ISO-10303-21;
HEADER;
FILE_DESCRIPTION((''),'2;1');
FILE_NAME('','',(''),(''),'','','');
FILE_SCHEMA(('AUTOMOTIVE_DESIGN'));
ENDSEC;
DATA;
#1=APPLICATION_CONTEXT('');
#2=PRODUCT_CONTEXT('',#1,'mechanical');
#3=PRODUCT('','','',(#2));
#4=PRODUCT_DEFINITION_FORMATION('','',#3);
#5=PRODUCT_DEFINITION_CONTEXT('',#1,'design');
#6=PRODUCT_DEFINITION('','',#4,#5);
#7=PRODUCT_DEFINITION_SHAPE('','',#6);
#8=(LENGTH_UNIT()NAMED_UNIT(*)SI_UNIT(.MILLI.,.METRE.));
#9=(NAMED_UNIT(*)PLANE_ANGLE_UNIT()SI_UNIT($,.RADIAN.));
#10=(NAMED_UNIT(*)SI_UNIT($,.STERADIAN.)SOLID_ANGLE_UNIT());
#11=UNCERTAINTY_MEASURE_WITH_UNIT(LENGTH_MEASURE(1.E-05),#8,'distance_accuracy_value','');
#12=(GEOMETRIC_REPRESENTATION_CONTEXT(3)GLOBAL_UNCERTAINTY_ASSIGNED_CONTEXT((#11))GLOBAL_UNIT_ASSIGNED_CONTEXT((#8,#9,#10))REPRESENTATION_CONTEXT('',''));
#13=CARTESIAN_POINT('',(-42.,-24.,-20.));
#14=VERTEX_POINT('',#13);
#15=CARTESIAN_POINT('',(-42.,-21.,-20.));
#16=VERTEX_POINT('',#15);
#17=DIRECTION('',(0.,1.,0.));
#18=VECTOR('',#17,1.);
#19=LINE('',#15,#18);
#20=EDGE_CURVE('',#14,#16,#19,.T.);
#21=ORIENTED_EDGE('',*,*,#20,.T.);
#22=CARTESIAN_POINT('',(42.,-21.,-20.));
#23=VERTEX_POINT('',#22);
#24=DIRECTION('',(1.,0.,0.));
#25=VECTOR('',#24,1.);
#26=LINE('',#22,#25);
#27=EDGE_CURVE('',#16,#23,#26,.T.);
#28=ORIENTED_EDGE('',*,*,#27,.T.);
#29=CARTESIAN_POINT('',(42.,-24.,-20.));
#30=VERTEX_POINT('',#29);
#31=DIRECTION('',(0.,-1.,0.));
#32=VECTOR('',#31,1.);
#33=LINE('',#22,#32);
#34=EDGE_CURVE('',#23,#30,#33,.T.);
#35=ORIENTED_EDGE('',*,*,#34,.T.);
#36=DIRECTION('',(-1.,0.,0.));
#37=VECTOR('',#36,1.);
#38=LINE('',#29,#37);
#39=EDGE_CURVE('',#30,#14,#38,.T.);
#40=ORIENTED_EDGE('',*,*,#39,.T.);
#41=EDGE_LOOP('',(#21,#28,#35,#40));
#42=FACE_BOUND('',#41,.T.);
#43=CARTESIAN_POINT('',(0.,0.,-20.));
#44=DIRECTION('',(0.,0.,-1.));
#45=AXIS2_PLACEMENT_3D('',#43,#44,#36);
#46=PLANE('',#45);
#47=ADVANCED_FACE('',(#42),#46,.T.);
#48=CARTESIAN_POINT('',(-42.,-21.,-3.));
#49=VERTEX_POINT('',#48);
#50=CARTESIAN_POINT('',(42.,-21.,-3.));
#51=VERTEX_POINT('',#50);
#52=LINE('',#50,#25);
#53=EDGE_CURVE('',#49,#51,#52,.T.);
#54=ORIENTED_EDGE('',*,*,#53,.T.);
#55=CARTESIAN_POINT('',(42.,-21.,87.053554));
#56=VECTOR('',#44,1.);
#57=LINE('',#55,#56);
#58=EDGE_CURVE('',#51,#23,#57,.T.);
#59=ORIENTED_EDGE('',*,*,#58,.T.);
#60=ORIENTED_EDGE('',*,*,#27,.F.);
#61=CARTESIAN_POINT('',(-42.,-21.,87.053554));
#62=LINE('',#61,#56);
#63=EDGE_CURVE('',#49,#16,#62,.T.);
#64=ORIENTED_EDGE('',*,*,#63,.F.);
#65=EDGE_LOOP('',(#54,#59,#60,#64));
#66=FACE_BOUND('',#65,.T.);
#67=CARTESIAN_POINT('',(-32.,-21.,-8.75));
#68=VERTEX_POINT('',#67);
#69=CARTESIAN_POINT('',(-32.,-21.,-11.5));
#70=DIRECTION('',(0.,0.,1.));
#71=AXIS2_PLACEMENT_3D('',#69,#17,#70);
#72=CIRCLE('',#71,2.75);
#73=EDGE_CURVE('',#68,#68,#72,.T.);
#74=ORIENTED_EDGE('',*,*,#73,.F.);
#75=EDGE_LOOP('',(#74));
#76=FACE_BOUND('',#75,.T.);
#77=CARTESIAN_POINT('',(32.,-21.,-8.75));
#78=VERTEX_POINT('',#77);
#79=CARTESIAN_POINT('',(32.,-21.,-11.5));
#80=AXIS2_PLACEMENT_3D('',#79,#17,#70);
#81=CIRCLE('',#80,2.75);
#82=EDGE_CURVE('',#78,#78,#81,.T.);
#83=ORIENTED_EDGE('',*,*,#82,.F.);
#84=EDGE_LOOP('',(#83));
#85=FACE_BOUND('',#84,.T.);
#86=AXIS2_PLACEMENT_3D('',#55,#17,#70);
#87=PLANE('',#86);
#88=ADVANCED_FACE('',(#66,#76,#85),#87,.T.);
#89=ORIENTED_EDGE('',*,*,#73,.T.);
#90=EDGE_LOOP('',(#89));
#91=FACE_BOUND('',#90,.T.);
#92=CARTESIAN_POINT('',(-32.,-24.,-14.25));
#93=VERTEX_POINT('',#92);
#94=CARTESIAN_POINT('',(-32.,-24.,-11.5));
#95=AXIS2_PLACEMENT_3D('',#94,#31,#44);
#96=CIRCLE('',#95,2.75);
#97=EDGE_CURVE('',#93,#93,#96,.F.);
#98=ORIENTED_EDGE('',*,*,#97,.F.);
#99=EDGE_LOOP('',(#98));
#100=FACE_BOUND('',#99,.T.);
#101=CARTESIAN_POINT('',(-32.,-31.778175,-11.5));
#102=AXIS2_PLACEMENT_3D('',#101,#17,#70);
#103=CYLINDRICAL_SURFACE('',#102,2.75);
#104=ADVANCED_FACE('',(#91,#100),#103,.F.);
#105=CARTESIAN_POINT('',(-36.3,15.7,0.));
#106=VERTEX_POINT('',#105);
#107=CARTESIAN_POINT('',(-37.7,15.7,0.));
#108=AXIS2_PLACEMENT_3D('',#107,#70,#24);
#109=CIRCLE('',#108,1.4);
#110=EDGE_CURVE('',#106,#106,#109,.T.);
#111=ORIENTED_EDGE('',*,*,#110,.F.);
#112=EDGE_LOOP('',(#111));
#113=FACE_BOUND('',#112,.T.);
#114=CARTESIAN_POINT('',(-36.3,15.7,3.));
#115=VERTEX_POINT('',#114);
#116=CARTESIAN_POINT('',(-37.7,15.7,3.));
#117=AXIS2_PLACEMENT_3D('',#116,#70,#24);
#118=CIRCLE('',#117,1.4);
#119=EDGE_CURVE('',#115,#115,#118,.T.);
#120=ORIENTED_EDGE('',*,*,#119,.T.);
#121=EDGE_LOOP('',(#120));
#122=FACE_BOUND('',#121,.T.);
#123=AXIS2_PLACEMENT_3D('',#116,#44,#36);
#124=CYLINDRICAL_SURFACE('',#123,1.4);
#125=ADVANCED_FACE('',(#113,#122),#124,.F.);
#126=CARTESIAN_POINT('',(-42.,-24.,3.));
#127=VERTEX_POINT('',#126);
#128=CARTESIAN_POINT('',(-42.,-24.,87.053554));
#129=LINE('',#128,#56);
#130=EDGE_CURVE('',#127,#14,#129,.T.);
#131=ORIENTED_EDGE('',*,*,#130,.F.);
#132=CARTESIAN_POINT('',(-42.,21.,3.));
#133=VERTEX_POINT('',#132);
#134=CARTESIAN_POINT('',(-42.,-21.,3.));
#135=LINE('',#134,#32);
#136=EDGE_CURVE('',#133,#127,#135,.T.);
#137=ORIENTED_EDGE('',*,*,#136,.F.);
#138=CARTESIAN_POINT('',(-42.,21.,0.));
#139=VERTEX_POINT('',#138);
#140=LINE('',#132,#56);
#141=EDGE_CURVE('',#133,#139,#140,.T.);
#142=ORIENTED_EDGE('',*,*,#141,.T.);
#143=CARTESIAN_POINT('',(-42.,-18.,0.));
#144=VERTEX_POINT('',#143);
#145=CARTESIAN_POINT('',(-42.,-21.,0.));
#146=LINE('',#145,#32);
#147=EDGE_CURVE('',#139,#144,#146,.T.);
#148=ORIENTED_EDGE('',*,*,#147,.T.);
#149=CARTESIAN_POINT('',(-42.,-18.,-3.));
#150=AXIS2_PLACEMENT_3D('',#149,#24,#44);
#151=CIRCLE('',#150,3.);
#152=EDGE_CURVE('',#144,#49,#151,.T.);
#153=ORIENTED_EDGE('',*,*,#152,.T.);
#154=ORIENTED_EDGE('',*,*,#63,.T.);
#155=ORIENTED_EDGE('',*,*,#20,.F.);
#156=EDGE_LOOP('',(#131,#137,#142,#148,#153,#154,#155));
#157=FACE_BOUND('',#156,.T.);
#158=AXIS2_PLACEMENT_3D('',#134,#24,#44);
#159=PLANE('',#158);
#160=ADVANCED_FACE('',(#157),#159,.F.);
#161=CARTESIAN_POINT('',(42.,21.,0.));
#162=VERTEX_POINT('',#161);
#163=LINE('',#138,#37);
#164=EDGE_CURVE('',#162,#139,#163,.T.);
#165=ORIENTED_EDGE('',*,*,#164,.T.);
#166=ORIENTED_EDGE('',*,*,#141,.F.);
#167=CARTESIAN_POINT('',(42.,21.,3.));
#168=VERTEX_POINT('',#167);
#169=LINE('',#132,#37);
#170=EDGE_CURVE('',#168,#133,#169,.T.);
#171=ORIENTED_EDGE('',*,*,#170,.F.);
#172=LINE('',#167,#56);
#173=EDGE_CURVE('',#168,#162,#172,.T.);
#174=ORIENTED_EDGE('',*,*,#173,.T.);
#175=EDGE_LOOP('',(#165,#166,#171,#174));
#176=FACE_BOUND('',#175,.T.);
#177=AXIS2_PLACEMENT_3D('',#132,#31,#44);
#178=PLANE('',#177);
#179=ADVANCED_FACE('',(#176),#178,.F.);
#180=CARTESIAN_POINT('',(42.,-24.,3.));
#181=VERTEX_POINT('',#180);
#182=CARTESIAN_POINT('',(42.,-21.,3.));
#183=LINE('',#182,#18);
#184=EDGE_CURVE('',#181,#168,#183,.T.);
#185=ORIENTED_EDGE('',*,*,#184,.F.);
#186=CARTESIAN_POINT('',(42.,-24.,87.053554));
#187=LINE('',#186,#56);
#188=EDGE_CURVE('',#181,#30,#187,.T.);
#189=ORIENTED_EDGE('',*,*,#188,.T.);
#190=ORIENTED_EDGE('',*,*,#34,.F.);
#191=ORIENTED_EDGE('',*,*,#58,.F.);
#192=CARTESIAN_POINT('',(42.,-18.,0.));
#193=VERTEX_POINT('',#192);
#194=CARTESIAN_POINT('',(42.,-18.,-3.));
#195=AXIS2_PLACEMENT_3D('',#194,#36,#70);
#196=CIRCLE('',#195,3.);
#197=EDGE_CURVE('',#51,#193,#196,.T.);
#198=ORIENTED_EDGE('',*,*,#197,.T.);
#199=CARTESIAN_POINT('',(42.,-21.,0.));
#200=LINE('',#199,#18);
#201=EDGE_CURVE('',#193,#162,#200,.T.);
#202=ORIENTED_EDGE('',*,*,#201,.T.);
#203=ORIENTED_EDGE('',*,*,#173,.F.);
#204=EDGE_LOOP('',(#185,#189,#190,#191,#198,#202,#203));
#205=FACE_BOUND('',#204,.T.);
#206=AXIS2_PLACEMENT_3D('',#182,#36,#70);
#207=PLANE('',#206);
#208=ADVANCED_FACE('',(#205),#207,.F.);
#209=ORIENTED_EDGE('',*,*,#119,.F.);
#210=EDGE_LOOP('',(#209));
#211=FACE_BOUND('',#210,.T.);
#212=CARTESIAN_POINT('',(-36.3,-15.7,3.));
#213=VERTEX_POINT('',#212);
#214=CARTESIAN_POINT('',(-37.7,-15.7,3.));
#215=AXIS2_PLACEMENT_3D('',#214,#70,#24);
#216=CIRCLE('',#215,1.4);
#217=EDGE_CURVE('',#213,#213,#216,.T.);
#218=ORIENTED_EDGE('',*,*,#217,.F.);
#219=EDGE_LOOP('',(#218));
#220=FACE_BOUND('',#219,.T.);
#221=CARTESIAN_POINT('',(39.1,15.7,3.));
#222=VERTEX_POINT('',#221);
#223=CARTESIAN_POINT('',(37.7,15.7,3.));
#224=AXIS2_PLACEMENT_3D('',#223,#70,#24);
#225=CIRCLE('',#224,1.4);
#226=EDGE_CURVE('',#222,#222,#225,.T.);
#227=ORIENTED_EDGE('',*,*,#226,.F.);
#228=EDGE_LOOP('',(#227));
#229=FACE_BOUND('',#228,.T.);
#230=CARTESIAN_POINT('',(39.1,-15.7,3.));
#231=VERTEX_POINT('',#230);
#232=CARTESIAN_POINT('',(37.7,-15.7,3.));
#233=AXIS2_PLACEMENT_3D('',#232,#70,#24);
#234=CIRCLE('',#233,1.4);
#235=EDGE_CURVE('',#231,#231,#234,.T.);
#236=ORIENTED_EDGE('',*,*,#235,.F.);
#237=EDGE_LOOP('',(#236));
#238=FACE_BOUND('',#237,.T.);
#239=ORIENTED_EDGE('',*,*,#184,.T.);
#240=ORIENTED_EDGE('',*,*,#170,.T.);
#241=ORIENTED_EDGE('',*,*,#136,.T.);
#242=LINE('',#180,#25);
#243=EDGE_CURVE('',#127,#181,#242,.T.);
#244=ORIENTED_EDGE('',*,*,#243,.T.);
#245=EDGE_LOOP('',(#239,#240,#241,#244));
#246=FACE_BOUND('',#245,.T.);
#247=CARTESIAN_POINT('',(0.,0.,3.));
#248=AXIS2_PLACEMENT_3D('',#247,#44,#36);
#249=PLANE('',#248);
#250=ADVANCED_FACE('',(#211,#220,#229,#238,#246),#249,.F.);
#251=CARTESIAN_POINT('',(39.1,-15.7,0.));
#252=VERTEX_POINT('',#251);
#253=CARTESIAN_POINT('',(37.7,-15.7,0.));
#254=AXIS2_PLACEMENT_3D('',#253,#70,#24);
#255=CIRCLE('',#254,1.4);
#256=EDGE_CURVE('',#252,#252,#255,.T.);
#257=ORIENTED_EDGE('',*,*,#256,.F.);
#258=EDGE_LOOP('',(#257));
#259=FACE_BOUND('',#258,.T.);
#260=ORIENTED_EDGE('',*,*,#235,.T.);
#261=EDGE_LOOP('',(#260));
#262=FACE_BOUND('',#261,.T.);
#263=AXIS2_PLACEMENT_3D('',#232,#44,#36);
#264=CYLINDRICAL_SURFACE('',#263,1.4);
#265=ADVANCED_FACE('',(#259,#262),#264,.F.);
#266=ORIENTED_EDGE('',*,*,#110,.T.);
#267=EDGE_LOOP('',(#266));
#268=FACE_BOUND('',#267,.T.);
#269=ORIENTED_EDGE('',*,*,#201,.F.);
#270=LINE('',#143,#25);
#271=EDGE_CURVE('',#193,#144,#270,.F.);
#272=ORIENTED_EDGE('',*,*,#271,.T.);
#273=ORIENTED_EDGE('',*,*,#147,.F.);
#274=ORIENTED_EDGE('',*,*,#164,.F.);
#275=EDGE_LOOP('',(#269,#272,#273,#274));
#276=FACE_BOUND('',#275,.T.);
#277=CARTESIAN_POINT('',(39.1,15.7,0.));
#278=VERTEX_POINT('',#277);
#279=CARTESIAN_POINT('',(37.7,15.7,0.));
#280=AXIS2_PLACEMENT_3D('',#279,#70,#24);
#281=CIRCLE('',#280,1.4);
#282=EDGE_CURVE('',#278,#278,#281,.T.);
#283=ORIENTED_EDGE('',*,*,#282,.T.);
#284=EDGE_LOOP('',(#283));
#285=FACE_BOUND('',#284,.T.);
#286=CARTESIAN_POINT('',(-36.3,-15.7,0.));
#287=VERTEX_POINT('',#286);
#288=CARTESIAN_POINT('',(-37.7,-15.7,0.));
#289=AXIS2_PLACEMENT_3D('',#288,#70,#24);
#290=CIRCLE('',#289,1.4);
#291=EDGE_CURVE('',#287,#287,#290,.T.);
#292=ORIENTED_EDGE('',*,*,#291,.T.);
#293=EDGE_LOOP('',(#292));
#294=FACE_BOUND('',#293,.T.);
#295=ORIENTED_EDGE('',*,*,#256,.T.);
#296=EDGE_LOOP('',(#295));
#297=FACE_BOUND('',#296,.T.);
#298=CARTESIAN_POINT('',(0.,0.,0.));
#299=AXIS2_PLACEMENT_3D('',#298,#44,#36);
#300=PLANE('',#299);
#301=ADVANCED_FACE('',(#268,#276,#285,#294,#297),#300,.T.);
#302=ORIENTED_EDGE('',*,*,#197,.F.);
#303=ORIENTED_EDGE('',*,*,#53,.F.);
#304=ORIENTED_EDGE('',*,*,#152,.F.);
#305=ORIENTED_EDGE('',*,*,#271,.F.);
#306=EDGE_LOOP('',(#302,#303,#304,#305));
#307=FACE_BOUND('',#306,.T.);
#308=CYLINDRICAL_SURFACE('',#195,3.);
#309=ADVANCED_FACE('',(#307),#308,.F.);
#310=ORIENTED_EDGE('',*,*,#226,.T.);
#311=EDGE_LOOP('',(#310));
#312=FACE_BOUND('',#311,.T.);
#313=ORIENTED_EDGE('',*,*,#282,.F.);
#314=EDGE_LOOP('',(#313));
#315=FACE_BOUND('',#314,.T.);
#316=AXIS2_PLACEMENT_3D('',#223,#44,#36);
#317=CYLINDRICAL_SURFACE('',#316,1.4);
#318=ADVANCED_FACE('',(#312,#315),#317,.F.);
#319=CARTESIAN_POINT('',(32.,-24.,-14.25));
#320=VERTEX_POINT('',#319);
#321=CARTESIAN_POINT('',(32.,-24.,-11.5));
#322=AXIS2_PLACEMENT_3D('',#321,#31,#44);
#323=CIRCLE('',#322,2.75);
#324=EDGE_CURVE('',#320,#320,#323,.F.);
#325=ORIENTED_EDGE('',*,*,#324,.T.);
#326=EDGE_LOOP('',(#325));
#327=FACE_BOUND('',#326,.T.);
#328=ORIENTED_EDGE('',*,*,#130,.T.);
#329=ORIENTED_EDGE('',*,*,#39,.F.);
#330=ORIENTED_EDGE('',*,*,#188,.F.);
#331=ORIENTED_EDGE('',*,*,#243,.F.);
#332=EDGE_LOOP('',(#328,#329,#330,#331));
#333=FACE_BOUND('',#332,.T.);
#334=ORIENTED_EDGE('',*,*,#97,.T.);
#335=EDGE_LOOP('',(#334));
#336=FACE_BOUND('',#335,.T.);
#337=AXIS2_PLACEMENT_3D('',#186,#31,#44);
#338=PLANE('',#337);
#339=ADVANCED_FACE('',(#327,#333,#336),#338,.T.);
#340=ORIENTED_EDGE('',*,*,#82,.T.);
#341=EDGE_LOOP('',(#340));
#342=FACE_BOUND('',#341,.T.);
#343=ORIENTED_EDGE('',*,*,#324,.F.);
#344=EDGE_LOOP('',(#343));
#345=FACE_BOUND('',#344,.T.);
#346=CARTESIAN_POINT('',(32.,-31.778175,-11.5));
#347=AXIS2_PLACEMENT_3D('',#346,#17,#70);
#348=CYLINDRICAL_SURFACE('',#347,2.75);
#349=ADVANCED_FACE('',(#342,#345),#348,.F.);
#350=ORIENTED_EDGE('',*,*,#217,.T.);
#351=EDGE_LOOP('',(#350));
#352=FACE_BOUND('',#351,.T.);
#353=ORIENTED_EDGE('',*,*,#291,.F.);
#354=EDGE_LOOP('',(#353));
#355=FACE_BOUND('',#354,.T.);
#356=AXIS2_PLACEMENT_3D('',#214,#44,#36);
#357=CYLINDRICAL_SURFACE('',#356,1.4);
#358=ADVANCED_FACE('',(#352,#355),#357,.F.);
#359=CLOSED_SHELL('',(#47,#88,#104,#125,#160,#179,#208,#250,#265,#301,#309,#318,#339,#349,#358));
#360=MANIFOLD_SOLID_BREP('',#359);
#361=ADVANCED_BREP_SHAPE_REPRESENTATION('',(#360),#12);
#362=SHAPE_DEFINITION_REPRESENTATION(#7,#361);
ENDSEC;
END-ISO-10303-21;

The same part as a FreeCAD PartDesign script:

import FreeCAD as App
import Part
import Sketcher
Q = App.Units.Quantity


def edges_at(feature, points):
    """Names of the edges that pass closest to the given points."""
    edges = feature.Shape.Edges
    near = lambda p: min(range(len(edges)), key=lambda i: edges[i].distToShape(Part.Vertex(*p))[0])
    return sorted({f"Edge{near(p) + 1}" for p in points})


def add_polygon(sketch, points):
    """Adds a closed chain of lines whose ends are joined by coincident constraints."""
    first, n = sketch.GeometryCount, len(points)
    for a, b in zip(points, points[1:] + points[:1]):
        sketch.addGeometry(Part.LineSegment(App.Vector(*a, 0), App.Vector(*b, 0)), False)
    for i in range(n):
        sketch.addConstraint(Sketcher.Constraint("Coincident", first + i, 2, first + (i + 1) % n, 1))

doc = App.newDocument("Part")
body = doc.addObject("PartDesign::Body", "Body")

# Sketch on XY plane
sketch1 = doc.addObject("Sketcher::SketchObject", "Sketch")
body.addObject(sketch1)
sketch1.AttachmentSupport = (doc.XY_Plane, [""])
sketch1.MapMode = "FlatFace"
add_polygon(sketch1, [(-42, 21), (-42, -21), (42, -21), (42, 21)])  # lines 0-3
sketch1.addGeometry(Part.Circle(App.Vector(-37.7, -15.7, 0), App.Vector(0, 0, 1), 1.4), False)  # 4
sketch1.addGeometry(Part.Circle(App.Vector(37.7, -15.7, 0), App.Vector(0, 0, 1), 1.4), False)  # 5
sketch1.addGeometry(Part.Circle(App.Vector(-37.7, 15.7, 0), App.Vector(0, 0, 1), 1.4), False)  # 6
sketch1.addGeometry(Part.Circle(App.Vector(37.7, 15.7, 0), App.Vector(0, 0, 1), 1.4), False)  # 7
sketch1.addConstraint([
    Sketcher.Constraint("Vertical", 0),
    Sketcher.Constraint("Horizontal", 1),
    Sketcher.Constraint("Vertical", 2),
    Sketcher.Constraint("Horizontal", 3),
    Sketcher.Constraint("Equal", 4, 5),
    Sketcher.Constraint("Equal", 5, 6),
    Sketcher.Constraint("Equal", 6, 7),
    Sketcher.Constraint("Symmetric", 5, 3, 6, 3, -1, 1),
    Sketcher.Constraint("Symmetric", 4, 3, 7, 3, -1, 1),
    Sketcher.Constraint("Symmetric", 0, 2, 2, 2, -1, 1),
    Sketcher.Constraint("Symmetric", 4, 3, 5, 3, -2),
    Sketcher.Constraint("Diameter", 4, Q("2.8 mm")),
    Sketcher.Constraint("DistanceX", 1, 1, 1, 2, Q("84 mm")),
    Sketcher.Constraint("DistanceY", 0, 2, 0, 1, Q("42 mm")),
    Sketcher.Constraint("DistanceX", 4, 3, -1, 1, Q("37.7 mm")),
    Sketcher.Constraint("DistanceY", 4, 3, -1, 1, Q("15.7 mm")),
])
pad1 = doc.addObject("PartDesign::Pad", "Pad")
body.addObject(pad1)
pad1.Profile = sketch1
pad1.Length = 3

# Sketch on XY plane
sketch2 = doc.addObject("Sketcher::SketchObject", "Sketch001")
body.addObject(sketch2)
sketch2.AttachmentSupport = (doc.XY_Plane, [""])
sketch2.MapMode = "FlatFace"
add_polygon(sketch2, [(42, -21), (42, -24), (-42, -24), (-42, -21)])  # lines 0-3
sketch2.addConstraint([
    Sketcher.Constraint("Vertical", 0),
    Sketcher.Constraint("Horizontal", 1),
    Sketcher.Constraint("Vertical", 2),
    Sketcher.Constraint("Horizontal", 3),
    Sketcher.Constraint("DistanceX", 1, 2, 1, 1, Q("84 mm")),
    Sketcher.Constraint("DistanceY", 0, 2, 0, 1, Q("3 mm")),
    Sketcher.Constraint("DistanceX", -1, 1, 0, 2, Q("42 mm")),
    Sketcher.Constraint("DistanceY", 0, 2, -1, 1, Q("24 mm")),
])
pad2 = doc.addObject("PartDesign::Pad", "Pad001")
body.addObject(pad2)
pad2.Profile = sketch2
pad2.Type = "TwoLengths"
pad2.Length = 20
pad2.Length2 = 3
pad2.Reversed = True
doc.recompute()

fillet = doc.addObject("PartDesign::Fillet", "Fillet")
body.addObject(fillet)
fillet.Base = (pad2, edges_at(pad2, [(0, -21, 0)]))
fillet.Radius = 3

# Sketch on XZ plane
sketch3 = doc.addObject("Sketcher::SketchObject", "Sketch002")
body.addObject(sketch3)
sketch3.AttachmentSupport = (doc.XZ_Plane, [""])
sketch3.MapMode = "FlatFace"
sketch3.AttachmentOffset = App.Placement(App.Vector(0, 0, 21), App.Rotation())
sketch3.addGeometry([
    Part.Circle(App.Vector(-32, -11.5, 0), App.Vector(0, 0, 1), 2.8),
    Part.Circle(App.Vector(32, -11.5, 0), App.Vector(0, 0, 1), 2.8),
], False)
sketch3.addConstraint([
    Sketcher.Constraint("Equal", 0, 1),
    Sketcher.Constraint("Symmetric", 0, 3, 1, 3, -2),
    Sketcher.Constraint("Diameter", 0, Q("5.5 mm")),
    Sketcher.Constraint("DistanceX", 0, 3, -1, 1, Q("32 mm")),
    Sketcher.Constraint("DistanceY", 0, 3, -1, 1, Q("11.5 mm")),
])
pocket1 = doc.addObject("PartDesign::Pocket", "Pocket")
body.addObject(pocket1)
pocket1.Profile = sketch3
pocket1.Length = 3
pocket1.Reversed = True

doc.recompute()
